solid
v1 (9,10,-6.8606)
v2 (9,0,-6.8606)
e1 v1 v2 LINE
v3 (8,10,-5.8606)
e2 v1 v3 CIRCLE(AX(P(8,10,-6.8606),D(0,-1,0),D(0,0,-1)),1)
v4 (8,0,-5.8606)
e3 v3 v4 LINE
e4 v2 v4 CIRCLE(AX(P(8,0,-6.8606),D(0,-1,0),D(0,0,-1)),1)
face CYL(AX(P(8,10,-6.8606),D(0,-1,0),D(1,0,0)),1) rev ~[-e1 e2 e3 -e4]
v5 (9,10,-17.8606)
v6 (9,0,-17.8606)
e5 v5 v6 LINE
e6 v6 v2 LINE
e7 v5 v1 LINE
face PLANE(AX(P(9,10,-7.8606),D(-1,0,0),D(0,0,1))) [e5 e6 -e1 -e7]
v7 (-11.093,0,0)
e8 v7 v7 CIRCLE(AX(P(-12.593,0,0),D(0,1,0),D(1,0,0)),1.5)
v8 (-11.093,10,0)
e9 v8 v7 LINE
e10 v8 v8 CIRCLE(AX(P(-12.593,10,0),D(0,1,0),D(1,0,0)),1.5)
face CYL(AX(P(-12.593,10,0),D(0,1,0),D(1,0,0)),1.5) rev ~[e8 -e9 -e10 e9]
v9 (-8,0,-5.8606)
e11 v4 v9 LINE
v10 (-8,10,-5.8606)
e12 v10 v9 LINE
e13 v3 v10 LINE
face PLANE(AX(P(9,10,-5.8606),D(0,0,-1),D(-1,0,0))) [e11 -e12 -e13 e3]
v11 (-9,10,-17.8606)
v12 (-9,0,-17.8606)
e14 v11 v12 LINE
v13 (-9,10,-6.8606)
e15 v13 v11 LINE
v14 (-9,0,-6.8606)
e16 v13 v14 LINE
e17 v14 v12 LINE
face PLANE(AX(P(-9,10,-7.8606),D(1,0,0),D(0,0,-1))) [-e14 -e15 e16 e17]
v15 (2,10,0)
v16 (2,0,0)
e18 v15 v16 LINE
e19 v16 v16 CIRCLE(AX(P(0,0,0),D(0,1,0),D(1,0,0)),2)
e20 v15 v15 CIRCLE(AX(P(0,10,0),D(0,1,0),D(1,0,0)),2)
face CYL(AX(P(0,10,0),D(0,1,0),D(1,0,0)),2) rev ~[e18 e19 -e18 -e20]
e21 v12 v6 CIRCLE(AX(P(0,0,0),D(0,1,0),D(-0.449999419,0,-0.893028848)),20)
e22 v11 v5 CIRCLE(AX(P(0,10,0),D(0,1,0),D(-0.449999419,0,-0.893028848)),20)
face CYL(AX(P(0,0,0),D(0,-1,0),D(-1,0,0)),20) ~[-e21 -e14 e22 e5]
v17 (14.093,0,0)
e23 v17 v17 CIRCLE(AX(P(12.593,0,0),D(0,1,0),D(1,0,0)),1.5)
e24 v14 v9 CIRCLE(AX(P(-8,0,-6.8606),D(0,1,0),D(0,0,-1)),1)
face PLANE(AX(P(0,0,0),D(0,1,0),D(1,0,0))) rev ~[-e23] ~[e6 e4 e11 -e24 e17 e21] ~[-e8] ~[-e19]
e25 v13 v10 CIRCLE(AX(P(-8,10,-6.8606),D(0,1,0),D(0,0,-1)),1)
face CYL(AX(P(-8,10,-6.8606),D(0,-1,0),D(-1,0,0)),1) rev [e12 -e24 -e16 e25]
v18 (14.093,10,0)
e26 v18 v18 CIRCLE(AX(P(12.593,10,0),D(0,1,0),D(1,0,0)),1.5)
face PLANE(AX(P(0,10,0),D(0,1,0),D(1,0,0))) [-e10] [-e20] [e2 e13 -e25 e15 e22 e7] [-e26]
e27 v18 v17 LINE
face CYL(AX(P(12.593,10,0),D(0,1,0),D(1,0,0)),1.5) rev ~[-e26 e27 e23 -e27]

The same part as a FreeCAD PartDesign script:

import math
import FreeCAD as App
import Part
import Sketcher
Q = App.Units.Quantity


def edges_at(feature, points):
    """Names of the edges that pass closest to the given points."""
    edges = feature.Shape.Edges
    near = lambda p: min(range(len(edges)), key=lambda i: edges[i].distToShape(Part.Vertex(*p))[0])
    return sorted({f"Edge{near(p) + 1}" for p in points})


def add_polygon(sketch, points):
    """Adds a closed chain of lines whose ends are joined by coincident constraints."""
    first, n = sketch.GeometryCount, len(points)
    for a, b in zip(points, points[1:] + points[:1]):
        sketch.addGeometry(Part.LineSegment(App.Vector(*a, 0), App.Vector(*b, 0)), False)
    for i in range(n):
        sketch.addConstraint(Sketcher.Constraint("Coincident", first + i, 2, first + (i + 1) % n, 1))

doc = App.newDocument("Part")
body = doc.addObject("PartDesign::Body", "Body")

# Sketch on XZ plane
sketch1 = body.newObject("Sketcher::SketchObject", "Sketch")
sketch1.AttachmentSupport = (doc.getObject("XZ_Plane"), [""])
sketch1.MapMode = "FlatFace"
sketch1.addGeometry(Part.Circle(App.Vector(0, 0, 0), App.Vector(0, 0, 1), 20), False)
sketch1.addConstraint(Sketcher.Constraint("Coincident", 0, 3, -1, 1))
sketch1.addConstraint(Sketcher.Constraint("Diameter", 0, Q("40 mm")))
pad1 = body.newObject("PartDesign::Pad", "Pad")
pad1.Profile = sketch1
pad1.Length = 10
pad1.Reversed = True

# Sketch on XZ plane
sketch2 = body.newObject("Sketcher::SketchObject", "Sketch001")
sketch2.AttachmentSupport = (doc.getObject("XZ_Plane"), [""])
sketch2.MapMode = "FlatFace"
sketch2.AttachmentOffset = App.Placement(App.Vector(0, 0, -10), App.Rotation())
sketch2.addGeometry(Part.Circle(App.Vector(0, 0, 0), App.Vector(0, 0, 1), 6), False)
sketch2.addConstraint(Sketcher.Constraint("Coincident", 0, 3, -1, 1))
sketch2.addConstraint(Sketcher.Constraint("Diameter", 0, Q("12 mm")))
pocket1 = body.newObject("PartDesign::Pocket", "Pocket")
pocket1.Profile = sketch2
pocket1.Length = 10
pocket1.Reversed = True

# Sketch on XZ plane
sketch3 = body.newObject("Sketcher::SketchObject", "Sketch002")
sketch3.AttachmentSupport = (doc.getObject("XZ_Plane"), [""])
sketch3.MapMode = "FlatFace"
sketch3.AttachmentOffset = App.Placement(App.Vector(0, 0, -10), App.Rotation())
sketch3.addGeometry(Part.Circle(App.Vector(-12.6, 0, 0), App.Vector(0, 0, 1), 1.5), False)
sketch3.addGeometry(Part.Circle(App.Vector(12.6, 0, 0), App.Vector(0, 0, 1), 1.5), False)
sketch3.addConstraint(Sketcher.Constraint("Equal", 0, 1))
sketch3.addConstraint(Sketcher.Constraint("Symmetric", 0, 3, 1, 3, -1, 1))
sketch3.addConstraint(Sketcher.Constraint("PointOnObject", 0, 3, -1))
sketch3.addConstraint(Sketcher.Constraint("Diameter", 0, Q("3 mm")))
sketch3.addConstraint(Sketcher.Constraint("DistanceX", 0, 3, -1, 1, Q("12.593 mm")))
pocket2 = body.newObject("PartDesign::Pocket", "Pocket001")
pocket2.Profile = sketch3
pocket2.Length = 10
pocket2.Reversed = True

# Sketch on XZ plane
sketch4 = body.newObject("Sketcher::SketchObject", "Sketch003")
sketch4.AttachmentSupport = (doc.getObject("XZ_Plane"), [""])
sketch4.MapMode = "FlatFace"
sketch4.AttachmentOffset = App.Placement(App.Vector(0, 0, -10), App.Rotation())
sketch4.addGeometry(Part.Circle(App.Vector(0, 0, 0), App.Vector(0, 0, 1), 6), False)
sketch4.addGeometry(Part.Circle(App.Vector(0, 0, 0), App.Vector(0, 0, 1), 5), False)
sketch4.addConstraint(Sketcher.Constraint("Coincident", 0, 3, -1, 1))
sketch4.addConstraint(Sketcher.Constraint("Coincident", 1, 3, -1, 1))
sketch4.addConstraint(Sketcher.Constraint("Diameter", 1, Q("10 mm")))
sketch4.addConstraint(Sketcher.Constraint("Diameter", 0, Q("12 mm")))
pad2 = body.newObject("PartDesign::Pad", "Pad001")
pad2.Profile = sketch4
pad2.Length = 10

# Sketch on XZ plane
sketch5 = body.newObject("Sketcher::SketchObject", "Sketch004")
sketch5.AttachmentSupport = (doc.getObject("XZ_Plane"), [""])
sketch5.MapMode = "FlatFace"
sketch5.AttachmentOffset = App.Placement(App.Vector(0, 0, -10), App.Rotation())
sketch5.addGeometry(Part.Circle(App.Vector(0, 0, 0), App.Vector(0, 0, 1), 5), False)
sketch5.addGeometry(Part.Circle(App.Vector(0, 0, 0), App.Vector(0, 0, 1), 3), False)
sketch5.addConstraint(Sketcher.Constraint("Coincident", 0, 3, -1, 1))
sketch5.addConstraint(Sketcher.Constraint("Coincident", 1, 3, -1, 1))
sketch5.addConstraint(Sketcher.Constraint("Diameter", 1, Q("6 mm")))
sketch5.addConstraint(Sketcher.Constraint("Diameter", 0, Q("10 mm")))
pad3 = body.newObject("PartDesign::Pad", "Pad002")
pad3.Profile = sketch5
pad3.Length = 2

# Sketch on XZ plane
sketch6 = body.newObject("Sketcher::SketchObject", "Sketch005")
sketch6.AttachmentSupport = (doc.getObject("XZ_Plane"), [""])
sketch6.MapMode = "FlatFace"
sketch6.AttachmentOffset = App.Placement(App.Vector(0, 0, -10), App.Rotation())
sketch6.addGeometry(Part.LineSegment(App.Vector(9, -8, 0), App.Vector(9, -18, 0)), False)
sketch6.addGeometry(Part.ArcOfCircle(Part.Circle(App.Vector(0, 0, 0), App.Vector(0, 0, 1), 20), math.radians(-117), math.radians(-63)), False)
sketch6.addGeometry(Part.LineSegment(App.Vector(-9, -18, 0), App.Vector(-9, -8, 0)), False)
sketch6.addGeometry(Part.LineSegment(App.Vector(-9, -8, 0), App.Vector(9, -8, 0)), False)
sketch6.addConstraint(Sketcher.Constraint("Coincident", 0, 2, 1, 2))
sketch6.addConstraint(Sketcher.Constraint("Coincident", 1, 1, 2, 1))
sketch6.addConstraint(Sketcher.Constraint("Coincident", 2, 2, 3, 1))
sketch6.addConstraint(Sketcher.Constraint("Coincident", 3, 2, 0, 1))
sketch6.addConstraint(Sketcher.Constraint("Vertical", 0))
sketch6.addConstraint(Sketcher.Constraint("Vertical", 2))
sketch6.addConstraint(Sketcher.Constraint("Horizontal", 3))
sketch6.addConstraint(Sketcher.Constraint("Coincident", 1, 3, -1, 1))
sketch6.addConstraint(Sketcher.Constraint("Horizontal", 0, 2, 1, 1))
sketch6.addConstraint(Sketcher.Constraint("DistanceX", 3, 1, 3, 2, Q("18 mm")))
sketch6.addConstraint(Sketcher.Constraint("DistanceY", 0, 2, 0, 1, Q("10 mm")))
sketch6.addConstraint(Sketcher.Constraint("Radius", 1, Q("20 mm")))
pocket3 = body.newObject("PartDesign::Pocket", "Pocket002")
pocket3.Profile = sketch6
pocket3.Length = 10
pocket3.Reversed = True

# Sketch on XZ plane
sketch7 = body.newObject("Sketcher::SketchObject", "Sketch006")
sketch7.AttachmentSupport = (doc.getObject("XZ_Plane"), [""])
sketch7.MapMode = "FlatFace"
sketch7.AttachmentOffset = App.Placement(App.Vector(0, 0, -10), App.Rotation())
add_polygon(sketch7, [(9, -7.9), (-9, -7.9), (-9, -5.9), (9, -5.9)])  # lines 0-3
sketch7.addConstraint(Sketcher.Constraint("Horizontal", 0))
sketch7.addConstraint(Sketcher.Constraint("Vertical", 1))
sketch7.addConstraint(Sketcher.Constraint("Horizontal", 2))
sketch7.addConstraint(Sketcher.Constraint("Vertical", 3))
sketch7.addConstraint(Sketcher.Constraint("DistanceX", 0, 2, 0, 1, Q("18 mm")))
sketch7.addConstraint(Sketcher.Constraint("DistanceY", 1, 1, 1, 2, Q("2 mm")))
sketch7.addConstraint(Sketcher.Constraint("DistanceX", 0, 2, -1, 1, Q("9 mm")))
sketch7.addConstraint(Sketcher.Constraint("DistanceY", 0, 2, -1, 1, Q("7.8606 mm")))
pocket4 = body.newObject("PartDesign::Pocket", "Pocket003")
pocket4.Profile = sketch7
pocket4.Length = 10
pocket4.Reversed = True

# Sketch on XZ plane
sketch8 = body.newObject("Sketcher::SketchObject", "Sketch007")
sketch8.AttachmentSupport = (doc.getObject("XZ_Plane"), [""])
sketch8.MapMode = "FlatFace"
sketch8.addGeometry(Part.Circle(App.Vector(0, 0, 0), App.Vector(0, 0, 1), 5), False)
sketch8.addConstraint(Sketcher.Constraint("Coincident", 0, 3, -1, 1))
sketch8.addConstraint(Sketcher.Constraint("Diameter", 0, Q("10 mm")))
pad4 = body.newObject("PartDesign::Pad", "Pad003")
pad4.Profile = sketch8
pad4.Length = 8
pad4.Reversed = True

# Sketch on XZ plane
sketch9 = body.newObject("Sketcher::SketchObject", "Sketch008")
sketch9.AttachmentSupport = (doc.getObject("XZ_Plane"), [""])
sketch9.MapMode = "FlatFace"
sketch9.AttachmentOffset = App.Placement(App.Vector(0, 0, -8), App.Rotation())
sketch9.addGeometry(Part.Circle(App.Vector(0, 0, 0), App.Vector(0, 0, 1), 3), False)
sketch9.addConstraint(Sketcher.Constraint("Coincident", 0, 3, -1, 1))
sketch9.addConstraint(Sketcher.Constraint("Diameter", 0, Q("6 mm")))
pocket5 = body.newObject("PartDesign::Pocket", "Pocket004")
pocket5.Profile = sketch9
pocket5.Length = 8
pocket5.Reversed = True

# Sketch on XZ plane
sketch10 = body.newObject("Sketcher::SketchObject", "Sketch009")
sketch10.AttachmentSupport = (doc.getObject("XZ_Plane"), [""])
sketch10.MapMode = "FlatFace"
sketch10.AttachmentOffset = App.Placement(App.Vector(0, 0, -10), App.Rotation())
sketch10.addGeometry(Part.Circle(App.Vector(0, 0, 0), App.Vector(0, 0, 1), 3), False)
sketch10.addGeometry(Part.Circle(App.Vector(0, 0, 0), App.Vector(0, 0, 1), 2), False)
sketch10.addConstraint(Sketcher.Constraint("Coincident", 0, 3, -1, 1))
sketch10.addConstraint(Sketcher.Constraint("Coincident", 1, 3, -1, 1))
sketch10.addConstraint(Sketcher.Constraint("Diameter", 1, Q("4 mm")))
sketch10.addConstraint(Sketcher.Constraint("Diameter", 0, Q("6 mm")))
pad5 = body.newObject("PartDesign::Pad", "Pad004")
pad5.Profile = sketch10
pad5.Length = 10
doc.recompute()

fillet = body.newObject("PartDesign::Fillet", "Fillet")
fillet.Base = (pad5, edges_at(pad5, [(9, 5, -5.861), (-9, 5, -5.861)]))
fillet.Radius = 1

doc.recompute()
